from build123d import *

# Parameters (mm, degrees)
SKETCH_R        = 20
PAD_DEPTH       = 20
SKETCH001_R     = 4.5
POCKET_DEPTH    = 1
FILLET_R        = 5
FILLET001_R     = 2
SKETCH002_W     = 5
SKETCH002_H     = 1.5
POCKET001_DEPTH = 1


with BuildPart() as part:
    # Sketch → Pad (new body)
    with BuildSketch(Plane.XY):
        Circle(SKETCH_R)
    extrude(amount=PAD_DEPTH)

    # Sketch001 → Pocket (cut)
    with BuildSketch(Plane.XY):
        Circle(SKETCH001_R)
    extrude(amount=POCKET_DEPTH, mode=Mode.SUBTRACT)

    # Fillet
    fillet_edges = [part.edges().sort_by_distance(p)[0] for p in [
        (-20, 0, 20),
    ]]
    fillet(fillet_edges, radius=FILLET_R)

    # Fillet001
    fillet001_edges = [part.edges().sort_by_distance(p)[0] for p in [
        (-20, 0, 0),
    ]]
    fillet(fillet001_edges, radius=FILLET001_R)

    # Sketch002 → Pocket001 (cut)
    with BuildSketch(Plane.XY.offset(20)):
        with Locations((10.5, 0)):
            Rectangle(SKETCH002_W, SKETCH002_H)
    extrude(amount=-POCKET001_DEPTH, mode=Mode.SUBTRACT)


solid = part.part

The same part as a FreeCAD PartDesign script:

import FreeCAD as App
import Part
import Sketcher

V = App.Vector


def edges_at(feature, points):
    """Names of the edges that pass closest to the given points."""
    edges = feature.Shape.Edges
    near = lambda p: min(range(len(edges)), key=lambda i: edges[i].distToShape(Part.Vertex(*p))[0])
    return sorted({f"Edge{near(p) + 1}" for p in points})


def add_polygon(sketch, points):
    """Adds a closed chain of lines whose ends are joined by coincident constraints."""
    first, n = sketch.GeometryCount, len(points)
    for a, b in zip(points, points[1:] + points[:1]):
        sketch.addGeometry(Part.LineSegment(App.Vector(*a, 0), App.Vector(*b, 0)), False)
    for i in range(n):
        sketch.addConstraint(Sketcher.Constraint("Coincident", first + i, 2, first + (i + 1) % n, 1))

doc = App.newDocument("Part")
body = doc.addObject("PartDesign::Body", "Body")

sketch1 = body.newObject("Sketcher::SketchObject", "Sketch")
sketch1.AttachmentSupport = (doc.getObject("XY_Plane"), [""])
sketch1.MapMode = "FlatFace"
sketch1.addGeometry(Part.Circle(V(0, 0, 0), V(0, 0, 1), 20), False)
sketch1.addConstraint(Sketcher.Constraint("Coincident", 0, 3, -1, 1))
sketch1.addConstraint(Sketcher.Constraint("Diameter", 0, 40.0))
pad1 = body.newObject("PartDesign::Pad", "Pad")
pad1.Profile = sketch1
pad1.Length = 20

sketch2 = body.newObject("Sketcher::SketchObject", "Sketch001")
sketch2.AttachmentSupport = (doc.getObject("XY_Plane"), [""])
sketch2.MapMode = "FlatFace"
sketch2.addGeometry(Part.Circle(V(0, 0, 0), V(0, 0, 1), 4.5), False)
sketch2.addConstraint(Sketcher.Constraint("Coincident", 0, 3, -1, 1))
sketch2.addConstraint(Sketcher.Constraint("Diameter", 0, 9.0))
pocket1 = body.newObject("PartDesign::Pocket", "Pocket")
pocket1.Profile = sketch2
pocket1.Length = 1
pocket1.Reversed = True
doc.recompute()

fillet = body.newObject("PartDesign::Fillet", "Fillet")
fillet.Base = (pocket1, edges_at(pocket1, [(-20, 0, 20)]))
fillet.Radius = 5
doc.recompute()

fillet2 = body.newObject("PartDesign::Fillet", "Fillet001")
fillet2.Base = (fillet, edges_at(fillet, [(-20, 0, 0)]))
fillet2.Radius = 2

sketch3 = body.newObject("Sketcher::SketchObject", "Sketch002")
sketch3.AttachmentSupport = (doc.getObject("XY_Plane"), [""])
sketch3.MapMode = "FlatFace"
sketch3.AttachmentOffset = App.Placement(V(0, 0, 20), App.Rotation())
add_polygon(sketch3, [(8, 0.75), (8, -0.75), (13, -0.75), (13, 0.75)])
sketch3.addConstraint(Sketcher.Constraint("Vertical", 0))
sketch3.addConstraint(Sketcher.Constraint("Horizontal", 1))
sketch3.addConstraint(Sketcher.Constraint("Vertical", 2))
sketch3.addConstraint(Sketcher.Constraint("Horizontal", 3))
sketch3.addConstraint(Sketcher.Constraint("DistanceX", 1, 1, 1, 2, 5.0))
sketch3.addConstraint(Sketcher.Constraint("DistanceY", 0, 2, 0, 1, 1.5))
sketch3.addConstraint(Sketcher.Constraint("DistanceX", -1, 1, 0, 2, 8.0))
sketch3.addConstraint(Sketcher.Constraint("DistanceY", 0, 2, -1, 1, 0.75))
pocket2 = body.newObject("PartDesign::Pocket", "Pocket001")
pocket2.Profile = sketch3
pocket2.Length = 1

doc.recompute()
